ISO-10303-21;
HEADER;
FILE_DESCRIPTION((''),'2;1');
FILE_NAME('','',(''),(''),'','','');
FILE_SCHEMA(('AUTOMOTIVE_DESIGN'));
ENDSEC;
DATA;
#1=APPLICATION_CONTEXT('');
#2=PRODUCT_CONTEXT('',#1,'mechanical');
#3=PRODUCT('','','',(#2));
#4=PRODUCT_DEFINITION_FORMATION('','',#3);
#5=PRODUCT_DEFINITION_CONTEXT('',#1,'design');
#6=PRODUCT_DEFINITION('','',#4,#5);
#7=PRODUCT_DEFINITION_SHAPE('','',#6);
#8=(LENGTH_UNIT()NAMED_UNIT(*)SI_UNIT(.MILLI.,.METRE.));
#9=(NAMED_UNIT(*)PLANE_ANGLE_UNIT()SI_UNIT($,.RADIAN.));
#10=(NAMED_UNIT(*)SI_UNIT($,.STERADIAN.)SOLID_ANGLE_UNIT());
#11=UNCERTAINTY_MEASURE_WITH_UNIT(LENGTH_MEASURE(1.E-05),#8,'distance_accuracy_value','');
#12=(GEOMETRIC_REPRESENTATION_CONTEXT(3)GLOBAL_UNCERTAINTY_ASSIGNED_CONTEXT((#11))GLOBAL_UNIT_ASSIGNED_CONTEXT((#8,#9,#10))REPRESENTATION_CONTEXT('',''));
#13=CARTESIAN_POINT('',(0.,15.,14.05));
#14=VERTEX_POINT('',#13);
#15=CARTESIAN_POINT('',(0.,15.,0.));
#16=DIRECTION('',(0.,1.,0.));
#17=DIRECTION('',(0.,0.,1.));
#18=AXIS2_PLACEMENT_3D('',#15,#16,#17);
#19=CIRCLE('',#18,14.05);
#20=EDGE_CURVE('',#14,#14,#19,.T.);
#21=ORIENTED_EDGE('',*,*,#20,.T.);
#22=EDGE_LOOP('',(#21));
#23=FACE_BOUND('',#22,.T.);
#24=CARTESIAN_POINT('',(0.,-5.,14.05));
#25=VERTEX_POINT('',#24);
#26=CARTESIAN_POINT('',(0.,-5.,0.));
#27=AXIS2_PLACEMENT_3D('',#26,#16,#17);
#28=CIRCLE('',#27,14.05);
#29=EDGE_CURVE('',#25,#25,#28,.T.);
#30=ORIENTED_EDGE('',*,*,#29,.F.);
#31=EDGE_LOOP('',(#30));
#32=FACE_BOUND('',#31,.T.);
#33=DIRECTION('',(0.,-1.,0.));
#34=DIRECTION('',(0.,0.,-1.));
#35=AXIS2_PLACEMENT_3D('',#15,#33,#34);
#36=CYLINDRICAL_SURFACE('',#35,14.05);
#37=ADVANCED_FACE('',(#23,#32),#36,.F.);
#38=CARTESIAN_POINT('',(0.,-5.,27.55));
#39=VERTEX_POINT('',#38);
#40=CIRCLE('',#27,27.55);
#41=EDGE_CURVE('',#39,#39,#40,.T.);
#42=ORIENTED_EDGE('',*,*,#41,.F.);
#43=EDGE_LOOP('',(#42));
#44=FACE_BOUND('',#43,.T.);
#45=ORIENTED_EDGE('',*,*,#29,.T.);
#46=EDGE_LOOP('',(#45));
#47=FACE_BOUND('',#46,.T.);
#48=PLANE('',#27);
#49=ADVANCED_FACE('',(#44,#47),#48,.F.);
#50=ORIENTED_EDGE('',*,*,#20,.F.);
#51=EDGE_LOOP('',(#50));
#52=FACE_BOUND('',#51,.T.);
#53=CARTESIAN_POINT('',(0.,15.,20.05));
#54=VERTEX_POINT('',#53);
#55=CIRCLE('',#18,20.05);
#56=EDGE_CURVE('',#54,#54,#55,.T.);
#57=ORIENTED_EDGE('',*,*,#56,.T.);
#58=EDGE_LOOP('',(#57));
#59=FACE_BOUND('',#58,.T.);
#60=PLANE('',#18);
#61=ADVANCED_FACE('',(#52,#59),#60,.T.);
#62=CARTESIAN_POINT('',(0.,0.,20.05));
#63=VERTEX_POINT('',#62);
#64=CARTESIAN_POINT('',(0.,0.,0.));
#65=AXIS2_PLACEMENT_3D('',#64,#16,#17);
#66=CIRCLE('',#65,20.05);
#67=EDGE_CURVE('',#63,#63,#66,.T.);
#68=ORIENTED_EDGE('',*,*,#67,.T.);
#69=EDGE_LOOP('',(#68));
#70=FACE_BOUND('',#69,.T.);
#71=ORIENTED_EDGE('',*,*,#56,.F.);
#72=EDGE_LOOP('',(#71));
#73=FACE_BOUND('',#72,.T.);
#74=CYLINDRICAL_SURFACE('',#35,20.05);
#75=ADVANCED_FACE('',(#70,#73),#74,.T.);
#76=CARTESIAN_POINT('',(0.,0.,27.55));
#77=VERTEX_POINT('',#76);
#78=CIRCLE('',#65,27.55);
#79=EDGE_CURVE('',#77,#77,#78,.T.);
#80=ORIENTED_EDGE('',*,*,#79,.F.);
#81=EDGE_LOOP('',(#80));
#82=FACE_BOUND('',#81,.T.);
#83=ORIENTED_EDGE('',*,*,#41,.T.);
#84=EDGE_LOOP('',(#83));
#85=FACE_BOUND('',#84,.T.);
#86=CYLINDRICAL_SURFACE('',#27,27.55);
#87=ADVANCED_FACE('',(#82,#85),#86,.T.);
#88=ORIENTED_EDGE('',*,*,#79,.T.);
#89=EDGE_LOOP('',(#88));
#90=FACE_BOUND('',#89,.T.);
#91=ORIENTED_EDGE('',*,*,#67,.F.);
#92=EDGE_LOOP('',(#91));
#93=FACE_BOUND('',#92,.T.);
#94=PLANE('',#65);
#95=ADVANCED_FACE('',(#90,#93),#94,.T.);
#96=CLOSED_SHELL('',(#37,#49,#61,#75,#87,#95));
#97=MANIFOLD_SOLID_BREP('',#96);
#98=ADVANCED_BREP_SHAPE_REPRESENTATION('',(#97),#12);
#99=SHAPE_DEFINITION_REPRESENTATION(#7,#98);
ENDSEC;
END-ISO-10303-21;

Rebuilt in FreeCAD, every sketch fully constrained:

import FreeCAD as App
import Part
import Sketcher
from FreeCAD import Vector
Q = App.Units.Quantity

doc = App.newDocument("Part")
body = doc.addObject("PartDesign::Body", "Body")

# Sketch on XZ plane
sketch1 = body.newObject("Sketcher::SketchObject", "Sketch")
sketch1.AttachmentSupport = (doc.getObject("XZ_Plane"), [""])
sketch1.MapMode = "FlatFace"
sketch1.addGeometry(Part.Circle(Vector(0, 0, 0), Vector(0, 0, 1), 20), False)
sketch1.addGeometry(Part.Circle(Vector(0, 0, 0), Vector(0, 0, 1), 14), False)
sketch1.addConstraint(Sketcher.Constraint("Coincident", 0, 3, -1, 1))
sketch1.addConstraint(Sketcher.Constraint("Coincident", 1, 3, -1, 1))
sketch1.addConstraint(Sketcher.Constraint("Diameter", 0, Q("40.1 mm")))
sketch1.addConstraint(Sketcher.Constraint("Diameter", 1, Q("28.1 mm")))
pad1 = body.newObject("PartDesign::Pad", "Pad")
pad1.Profile = sketch1
pad1.Length = 15
pad1.Reversed = True

# Sketch on XZ plane
sketch2 = body.newObject("Sketcher::SketchObject", "Sketch001")
sketch2.AttachmentSupport = (doc.getObject("XZ_Plane"), [""])
sketch2.MapMode = "FlatFace"
sketch2.AttachmentOffset = App.Placement(Vector(0, 0, 5), App.Rotation())
sketch2.addGeometry(Part.Circle(Vector(0, 0, 0), Vector(0, 0, 1), 28), False)
sketch2.addGeometry(Part.Circle(Vector(0, 0, 0), Vector(0, 0, 1), 14), False)
sketch2.addConstraint(Sketcher.Constraint("Coincident", 0, 3, -1, 1))
sketch2.addConstraint(Sketcher.Constraint("Coincident", 1, 3, -1, 1))
sketch2.addConstraint(Sketcher.Constraint("Diameter", 0, Q("55.1 mm")))
sketch2.addConstraint(Sketcher.Constraint("Diameter", 1, Q("28.1 mm")))
pad2 = body.newObject("PartDesign::Pad", "Pad001")
pad2.Profile = sketch2
pad2.Length = 5
pad2.Reversed = True

doc.recompute()
